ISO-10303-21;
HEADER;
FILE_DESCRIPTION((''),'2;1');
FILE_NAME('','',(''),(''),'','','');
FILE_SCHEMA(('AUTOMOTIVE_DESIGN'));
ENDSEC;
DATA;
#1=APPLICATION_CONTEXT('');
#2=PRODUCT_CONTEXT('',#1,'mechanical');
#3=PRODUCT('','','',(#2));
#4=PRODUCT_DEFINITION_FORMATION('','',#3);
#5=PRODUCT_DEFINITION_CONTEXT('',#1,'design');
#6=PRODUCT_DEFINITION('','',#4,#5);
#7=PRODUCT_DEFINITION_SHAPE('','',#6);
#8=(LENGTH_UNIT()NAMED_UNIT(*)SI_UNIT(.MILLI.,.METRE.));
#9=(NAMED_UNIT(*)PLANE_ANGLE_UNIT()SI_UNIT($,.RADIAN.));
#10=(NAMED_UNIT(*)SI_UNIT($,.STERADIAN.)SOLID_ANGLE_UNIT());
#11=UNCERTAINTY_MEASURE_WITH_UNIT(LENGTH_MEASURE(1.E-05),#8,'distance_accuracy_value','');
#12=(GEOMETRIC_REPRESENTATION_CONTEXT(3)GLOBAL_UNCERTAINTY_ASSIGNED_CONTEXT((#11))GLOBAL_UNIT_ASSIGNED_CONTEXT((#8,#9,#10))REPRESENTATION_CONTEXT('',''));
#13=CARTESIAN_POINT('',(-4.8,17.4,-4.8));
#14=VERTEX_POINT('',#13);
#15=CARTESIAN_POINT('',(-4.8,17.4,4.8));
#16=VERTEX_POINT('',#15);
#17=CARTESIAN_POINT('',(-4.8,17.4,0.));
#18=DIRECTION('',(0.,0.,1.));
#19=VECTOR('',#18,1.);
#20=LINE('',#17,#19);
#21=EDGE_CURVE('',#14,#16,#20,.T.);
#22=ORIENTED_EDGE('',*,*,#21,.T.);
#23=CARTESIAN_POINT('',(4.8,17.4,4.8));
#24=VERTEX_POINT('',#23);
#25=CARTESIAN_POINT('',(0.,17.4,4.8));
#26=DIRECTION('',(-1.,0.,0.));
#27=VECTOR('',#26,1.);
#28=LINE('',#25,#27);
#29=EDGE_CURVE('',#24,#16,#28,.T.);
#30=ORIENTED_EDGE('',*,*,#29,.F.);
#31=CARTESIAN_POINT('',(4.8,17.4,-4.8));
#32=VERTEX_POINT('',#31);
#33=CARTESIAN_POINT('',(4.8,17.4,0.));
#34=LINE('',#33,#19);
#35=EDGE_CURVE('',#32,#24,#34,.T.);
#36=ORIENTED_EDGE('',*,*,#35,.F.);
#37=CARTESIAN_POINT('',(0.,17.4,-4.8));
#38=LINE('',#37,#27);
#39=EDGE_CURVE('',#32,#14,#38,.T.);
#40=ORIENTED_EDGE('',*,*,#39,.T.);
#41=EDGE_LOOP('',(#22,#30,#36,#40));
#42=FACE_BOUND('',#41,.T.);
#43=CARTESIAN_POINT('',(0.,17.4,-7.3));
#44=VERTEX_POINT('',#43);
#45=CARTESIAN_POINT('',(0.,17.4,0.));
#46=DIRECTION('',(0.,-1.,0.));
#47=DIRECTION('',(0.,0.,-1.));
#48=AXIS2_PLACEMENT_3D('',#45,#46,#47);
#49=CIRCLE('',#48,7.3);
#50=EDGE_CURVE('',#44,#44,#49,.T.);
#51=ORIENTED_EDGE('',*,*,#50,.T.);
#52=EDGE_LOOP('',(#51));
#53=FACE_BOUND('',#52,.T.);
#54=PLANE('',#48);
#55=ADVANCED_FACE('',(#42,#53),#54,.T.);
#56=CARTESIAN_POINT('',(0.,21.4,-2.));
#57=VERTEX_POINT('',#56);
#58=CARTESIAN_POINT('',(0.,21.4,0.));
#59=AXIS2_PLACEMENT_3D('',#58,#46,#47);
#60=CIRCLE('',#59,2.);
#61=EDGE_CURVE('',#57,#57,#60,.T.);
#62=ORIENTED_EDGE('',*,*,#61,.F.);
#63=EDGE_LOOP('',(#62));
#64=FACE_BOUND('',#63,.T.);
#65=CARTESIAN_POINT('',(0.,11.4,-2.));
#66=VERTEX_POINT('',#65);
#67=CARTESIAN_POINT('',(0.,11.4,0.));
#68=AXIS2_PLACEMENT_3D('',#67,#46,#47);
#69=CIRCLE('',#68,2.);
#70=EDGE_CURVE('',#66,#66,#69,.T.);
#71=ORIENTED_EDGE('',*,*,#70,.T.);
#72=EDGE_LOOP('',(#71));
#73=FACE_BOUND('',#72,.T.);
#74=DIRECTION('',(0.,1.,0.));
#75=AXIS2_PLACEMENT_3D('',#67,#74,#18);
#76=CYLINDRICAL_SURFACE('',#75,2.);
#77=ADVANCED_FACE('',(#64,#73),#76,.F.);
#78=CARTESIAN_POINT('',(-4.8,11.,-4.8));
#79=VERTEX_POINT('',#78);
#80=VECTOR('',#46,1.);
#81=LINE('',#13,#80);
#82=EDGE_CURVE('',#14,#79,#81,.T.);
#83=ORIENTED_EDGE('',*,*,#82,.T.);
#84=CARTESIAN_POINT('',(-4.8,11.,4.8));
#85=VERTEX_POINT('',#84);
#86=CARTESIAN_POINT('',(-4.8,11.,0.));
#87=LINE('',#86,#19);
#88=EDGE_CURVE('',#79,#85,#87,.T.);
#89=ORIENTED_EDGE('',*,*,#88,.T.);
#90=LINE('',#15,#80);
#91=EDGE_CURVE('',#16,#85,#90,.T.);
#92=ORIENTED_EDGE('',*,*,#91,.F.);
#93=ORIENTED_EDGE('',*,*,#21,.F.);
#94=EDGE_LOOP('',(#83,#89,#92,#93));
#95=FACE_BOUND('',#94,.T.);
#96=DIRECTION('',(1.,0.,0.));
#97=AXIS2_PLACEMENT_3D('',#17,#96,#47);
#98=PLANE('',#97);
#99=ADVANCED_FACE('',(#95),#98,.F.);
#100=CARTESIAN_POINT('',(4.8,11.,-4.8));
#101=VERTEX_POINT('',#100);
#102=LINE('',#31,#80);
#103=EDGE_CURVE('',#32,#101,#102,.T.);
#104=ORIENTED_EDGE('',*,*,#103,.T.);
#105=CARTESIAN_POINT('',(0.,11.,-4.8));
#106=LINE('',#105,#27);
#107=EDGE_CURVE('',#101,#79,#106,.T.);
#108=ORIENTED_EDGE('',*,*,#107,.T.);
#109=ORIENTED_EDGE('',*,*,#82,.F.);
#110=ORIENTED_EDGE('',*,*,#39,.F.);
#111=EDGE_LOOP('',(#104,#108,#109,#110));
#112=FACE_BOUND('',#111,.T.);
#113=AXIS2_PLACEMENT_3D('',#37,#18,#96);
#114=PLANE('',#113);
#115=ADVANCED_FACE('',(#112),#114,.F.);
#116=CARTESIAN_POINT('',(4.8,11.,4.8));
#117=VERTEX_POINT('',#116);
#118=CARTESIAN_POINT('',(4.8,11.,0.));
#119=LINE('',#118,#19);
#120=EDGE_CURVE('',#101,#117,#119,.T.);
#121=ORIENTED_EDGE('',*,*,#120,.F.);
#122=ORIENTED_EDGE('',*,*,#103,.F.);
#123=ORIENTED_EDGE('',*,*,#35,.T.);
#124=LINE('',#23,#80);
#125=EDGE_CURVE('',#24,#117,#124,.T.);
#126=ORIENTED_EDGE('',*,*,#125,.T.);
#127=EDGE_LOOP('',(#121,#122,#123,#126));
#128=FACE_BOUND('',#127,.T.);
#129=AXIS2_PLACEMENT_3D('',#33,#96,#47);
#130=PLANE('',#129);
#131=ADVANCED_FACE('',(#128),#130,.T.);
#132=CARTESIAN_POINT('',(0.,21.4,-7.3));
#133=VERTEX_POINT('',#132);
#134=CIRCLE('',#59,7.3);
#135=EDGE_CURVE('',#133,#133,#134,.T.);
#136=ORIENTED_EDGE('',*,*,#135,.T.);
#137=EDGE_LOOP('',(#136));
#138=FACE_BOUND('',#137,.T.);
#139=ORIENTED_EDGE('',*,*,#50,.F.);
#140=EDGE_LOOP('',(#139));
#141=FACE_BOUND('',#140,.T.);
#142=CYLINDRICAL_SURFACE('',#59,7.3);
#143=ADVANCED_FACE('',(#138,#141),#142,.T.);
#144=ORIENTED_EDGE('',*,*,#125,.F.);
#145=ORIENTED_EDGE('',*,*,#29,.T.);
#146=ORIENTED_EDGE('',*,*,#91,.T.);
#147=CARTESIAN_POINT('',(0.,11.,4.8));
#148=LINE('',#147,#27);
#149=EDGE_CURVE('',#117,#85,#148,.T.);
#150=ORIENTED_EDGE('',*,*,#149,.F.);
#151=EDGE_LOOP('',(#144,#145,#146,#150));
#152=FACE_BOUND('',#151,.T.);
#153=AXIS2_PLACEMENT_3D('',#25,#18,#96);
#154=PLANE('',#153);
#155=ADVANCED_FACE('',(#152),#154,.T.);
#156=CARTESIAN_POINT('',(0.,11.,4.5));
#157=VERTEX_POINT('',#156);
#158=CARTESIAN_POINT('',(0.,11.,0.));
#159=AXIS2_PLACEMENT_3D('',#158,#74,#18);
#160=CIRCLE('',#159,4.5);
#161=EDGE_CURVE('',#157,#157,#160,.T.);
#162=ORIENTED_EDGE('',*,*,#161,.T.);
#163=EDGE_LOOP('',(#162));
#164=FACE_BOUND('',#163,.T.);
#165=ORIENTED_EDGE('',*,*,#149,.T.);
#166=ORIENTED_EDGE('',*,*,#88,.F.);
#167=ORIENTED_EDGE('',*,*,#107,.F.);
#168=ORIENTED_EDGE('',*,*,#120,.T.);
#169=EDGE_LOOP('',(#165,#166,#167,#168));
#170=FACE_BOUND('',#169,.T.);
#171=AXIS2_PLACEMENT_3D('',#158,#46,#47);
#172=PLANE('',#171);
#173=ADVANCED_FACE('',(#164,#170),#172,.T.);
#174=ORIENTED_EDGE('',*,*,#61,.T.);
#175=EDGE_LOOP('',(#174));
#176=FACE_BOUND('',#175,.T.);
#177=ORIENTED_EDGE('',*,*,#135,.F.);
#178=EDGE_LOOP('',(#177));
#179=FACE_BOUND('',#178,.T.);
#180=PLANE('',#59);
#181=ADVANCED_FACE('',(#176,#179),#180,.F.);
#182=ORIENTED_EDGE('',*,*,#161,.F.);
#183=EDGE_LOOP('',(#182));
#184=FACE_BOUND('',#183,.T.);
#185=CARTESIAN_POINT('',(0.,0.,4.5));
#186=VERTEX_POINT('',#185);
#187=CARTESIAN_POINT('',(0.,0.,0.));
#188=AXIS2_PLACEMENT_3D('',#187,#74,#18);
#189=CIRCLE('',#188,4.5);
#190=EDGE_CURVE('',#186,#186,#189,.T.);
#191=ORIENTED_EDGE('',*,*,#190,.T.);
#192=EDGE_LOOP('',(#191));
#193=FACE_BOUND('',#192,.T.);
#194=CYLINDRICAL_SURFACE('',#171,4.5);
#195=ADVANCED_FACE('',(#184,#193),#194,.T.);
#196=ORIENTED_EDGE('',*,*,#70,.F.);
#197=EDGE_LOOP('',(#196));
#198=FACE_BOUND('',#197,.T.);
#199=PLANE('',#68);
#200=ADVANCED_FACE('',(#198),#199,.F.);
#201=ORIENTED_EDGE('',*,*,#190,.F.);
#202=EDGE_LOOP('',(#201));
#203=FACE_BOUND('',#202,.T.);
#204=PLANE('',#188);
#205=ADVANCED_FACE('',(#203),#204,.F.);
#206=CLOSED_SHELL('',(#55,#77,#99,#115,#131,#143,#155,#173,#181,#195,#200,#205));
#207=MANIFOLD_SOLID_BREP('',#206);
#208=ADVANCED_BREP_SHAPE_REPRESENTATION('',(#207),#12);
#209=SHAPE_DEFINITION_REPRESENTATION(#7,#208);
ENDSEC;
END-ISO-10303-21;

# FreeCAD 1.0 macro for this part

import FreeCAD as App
import Part
import Sketcher
from FreeCAD import Vector


def add_polygon(sketch, points):
    """Adds a closed chain of lines whose ends are joined by coincident constraints."""
    first, n = sketch.GeometryCount, len(points)
    for a, b in zip(points, points[1:] + points[:1]):
        sketch.addGeometry(Part.LineSegment(App.Vector(*a, 0), App.Vector(*b, 0)), False)
    for i in range(n):
        sketch.addConstraint(Sketcher.Constraint("Coincident", first + i, 2, first + (i + 1) % n, 1))

doc = App.newDocument("Part")
body = doc.addObject("PartDesign::Body", "Body")

sketch1 = doc.addObject("Sketcher::SketchObject", "Sketch")
body.addObject(sketch1)
sketch1.AttachmentSupport = (doc.XZ_Plane, [""])
sketch1.MapMode = "FlatFace"
sketch1.addGeometry(Part.Circle(Vector(0, 0, 0), Vector(0, 0, 1), 4.5), False)
sketch1.addConstraint([
    Sketcher.Constraint("Coincident", 0, 3, -1, 1),
    Sketcher.Constraint("Diameter", 0, 9.0),
])
pad1 = doc.addObject("PartDesign::Pad", "Pad")
body.addObject(pad1)
pad1.Profile = sketch1
pad1.Length = 11
pad1.Reversed = True

sketch2 = doc.addObject("Sketcher::SketchObject", "Sketch001")
body.addObject(sketch2)
sketch2.AttachmentSupport = (doc.XZ_Plane, [""])
sketch2.MapMode = "FlatFace"
sketch2.AttachmentOffset = App.Placement(Vector(0, 0, -11), App.Rotation())
add_polygon(sketch2, [(-5, -5), (-5, 5), (5, 5), (5, -5)])
sketch2.addConstraint([
    Sketcher.Constraint("Vertical", 0),
    Sketcher.Constraint("Horizontal", 1),
    Sketcher.Constraint("Vertical", 2),
    Sketcher.Constraint("Horizontal", 3),
    Sketcher.Constraint("Symmetric", 0, 2, 2, 2, -1, 1),
    Sketcher.Constraint("Equal", 3, 0),
    Sketcher.Constraint("DistanceX", 1, 1, 1, 2, 9.6),
])
pad2 = doc.addObject("PartDesign::Pad", "Pad001")
body.addObject(pad2)
pad2.Profile = sketch2
pad2.Length = 6.4
pad2.Reversed = True

sketch3 = doc.addObject("Sketcher::SketchObject", "Sketch002")
body.addObject(sketch3)
sketch3.AttachmentSupport = (doc.XZ_Plane, [""])
sketch3.MapMode = "FlatFace"
sketch3.AttachmentOffset = App.Placement(Vector(0, 0, -17.4), App.Rotation())
sketch3.addGeometry(Part.Circle(Vector(0, 0, 0), Vector(0, 0, 1), 7), False)
sketch3.addConstraint([
    Sketcher.Constraint("Coincident", 0, 3, -1, 1),
    Sketcher.Constraint("Diameter", 0, 14.6),
])
pad3 = doc.addObject("PartDesign::Pad", "Pad002")
body.addObject(pad3)
pad3.Profile = sketch3
pad3.Length = 4
pad3.Reversed = True

sketch4 = doc.addObject("Sketcher::SketchObject", "Sketch003")
body.addObject(sketch4)
sketch4.AttachmentSupport = (doc.XZ_Plane, [""])
sketch4.MapMode = "FlatFace"
sketch4.AttachmentOffset = App.Placement(Vector(0, 0, -21.4), App.Rotation())
sketch4.addGeometry(Part.Circle(Vector(0, 0, 0), Vector(0, 0, 1), 2), False)
sketch4.addConstraint([
    Sketcher.Constraint("Coincident", 0, 3, -1, 1),
    Sketcher.Constraint("Diameter", 0, 4.0),
])
pocket1 = doc.addObject("PartDesign::Pocket", "Pocket")
body.addObject(pocket1)
pocket1.Profile = sketch4
pocket1.Length = 10
pocket1.Reversed = True

doc.recompute()
